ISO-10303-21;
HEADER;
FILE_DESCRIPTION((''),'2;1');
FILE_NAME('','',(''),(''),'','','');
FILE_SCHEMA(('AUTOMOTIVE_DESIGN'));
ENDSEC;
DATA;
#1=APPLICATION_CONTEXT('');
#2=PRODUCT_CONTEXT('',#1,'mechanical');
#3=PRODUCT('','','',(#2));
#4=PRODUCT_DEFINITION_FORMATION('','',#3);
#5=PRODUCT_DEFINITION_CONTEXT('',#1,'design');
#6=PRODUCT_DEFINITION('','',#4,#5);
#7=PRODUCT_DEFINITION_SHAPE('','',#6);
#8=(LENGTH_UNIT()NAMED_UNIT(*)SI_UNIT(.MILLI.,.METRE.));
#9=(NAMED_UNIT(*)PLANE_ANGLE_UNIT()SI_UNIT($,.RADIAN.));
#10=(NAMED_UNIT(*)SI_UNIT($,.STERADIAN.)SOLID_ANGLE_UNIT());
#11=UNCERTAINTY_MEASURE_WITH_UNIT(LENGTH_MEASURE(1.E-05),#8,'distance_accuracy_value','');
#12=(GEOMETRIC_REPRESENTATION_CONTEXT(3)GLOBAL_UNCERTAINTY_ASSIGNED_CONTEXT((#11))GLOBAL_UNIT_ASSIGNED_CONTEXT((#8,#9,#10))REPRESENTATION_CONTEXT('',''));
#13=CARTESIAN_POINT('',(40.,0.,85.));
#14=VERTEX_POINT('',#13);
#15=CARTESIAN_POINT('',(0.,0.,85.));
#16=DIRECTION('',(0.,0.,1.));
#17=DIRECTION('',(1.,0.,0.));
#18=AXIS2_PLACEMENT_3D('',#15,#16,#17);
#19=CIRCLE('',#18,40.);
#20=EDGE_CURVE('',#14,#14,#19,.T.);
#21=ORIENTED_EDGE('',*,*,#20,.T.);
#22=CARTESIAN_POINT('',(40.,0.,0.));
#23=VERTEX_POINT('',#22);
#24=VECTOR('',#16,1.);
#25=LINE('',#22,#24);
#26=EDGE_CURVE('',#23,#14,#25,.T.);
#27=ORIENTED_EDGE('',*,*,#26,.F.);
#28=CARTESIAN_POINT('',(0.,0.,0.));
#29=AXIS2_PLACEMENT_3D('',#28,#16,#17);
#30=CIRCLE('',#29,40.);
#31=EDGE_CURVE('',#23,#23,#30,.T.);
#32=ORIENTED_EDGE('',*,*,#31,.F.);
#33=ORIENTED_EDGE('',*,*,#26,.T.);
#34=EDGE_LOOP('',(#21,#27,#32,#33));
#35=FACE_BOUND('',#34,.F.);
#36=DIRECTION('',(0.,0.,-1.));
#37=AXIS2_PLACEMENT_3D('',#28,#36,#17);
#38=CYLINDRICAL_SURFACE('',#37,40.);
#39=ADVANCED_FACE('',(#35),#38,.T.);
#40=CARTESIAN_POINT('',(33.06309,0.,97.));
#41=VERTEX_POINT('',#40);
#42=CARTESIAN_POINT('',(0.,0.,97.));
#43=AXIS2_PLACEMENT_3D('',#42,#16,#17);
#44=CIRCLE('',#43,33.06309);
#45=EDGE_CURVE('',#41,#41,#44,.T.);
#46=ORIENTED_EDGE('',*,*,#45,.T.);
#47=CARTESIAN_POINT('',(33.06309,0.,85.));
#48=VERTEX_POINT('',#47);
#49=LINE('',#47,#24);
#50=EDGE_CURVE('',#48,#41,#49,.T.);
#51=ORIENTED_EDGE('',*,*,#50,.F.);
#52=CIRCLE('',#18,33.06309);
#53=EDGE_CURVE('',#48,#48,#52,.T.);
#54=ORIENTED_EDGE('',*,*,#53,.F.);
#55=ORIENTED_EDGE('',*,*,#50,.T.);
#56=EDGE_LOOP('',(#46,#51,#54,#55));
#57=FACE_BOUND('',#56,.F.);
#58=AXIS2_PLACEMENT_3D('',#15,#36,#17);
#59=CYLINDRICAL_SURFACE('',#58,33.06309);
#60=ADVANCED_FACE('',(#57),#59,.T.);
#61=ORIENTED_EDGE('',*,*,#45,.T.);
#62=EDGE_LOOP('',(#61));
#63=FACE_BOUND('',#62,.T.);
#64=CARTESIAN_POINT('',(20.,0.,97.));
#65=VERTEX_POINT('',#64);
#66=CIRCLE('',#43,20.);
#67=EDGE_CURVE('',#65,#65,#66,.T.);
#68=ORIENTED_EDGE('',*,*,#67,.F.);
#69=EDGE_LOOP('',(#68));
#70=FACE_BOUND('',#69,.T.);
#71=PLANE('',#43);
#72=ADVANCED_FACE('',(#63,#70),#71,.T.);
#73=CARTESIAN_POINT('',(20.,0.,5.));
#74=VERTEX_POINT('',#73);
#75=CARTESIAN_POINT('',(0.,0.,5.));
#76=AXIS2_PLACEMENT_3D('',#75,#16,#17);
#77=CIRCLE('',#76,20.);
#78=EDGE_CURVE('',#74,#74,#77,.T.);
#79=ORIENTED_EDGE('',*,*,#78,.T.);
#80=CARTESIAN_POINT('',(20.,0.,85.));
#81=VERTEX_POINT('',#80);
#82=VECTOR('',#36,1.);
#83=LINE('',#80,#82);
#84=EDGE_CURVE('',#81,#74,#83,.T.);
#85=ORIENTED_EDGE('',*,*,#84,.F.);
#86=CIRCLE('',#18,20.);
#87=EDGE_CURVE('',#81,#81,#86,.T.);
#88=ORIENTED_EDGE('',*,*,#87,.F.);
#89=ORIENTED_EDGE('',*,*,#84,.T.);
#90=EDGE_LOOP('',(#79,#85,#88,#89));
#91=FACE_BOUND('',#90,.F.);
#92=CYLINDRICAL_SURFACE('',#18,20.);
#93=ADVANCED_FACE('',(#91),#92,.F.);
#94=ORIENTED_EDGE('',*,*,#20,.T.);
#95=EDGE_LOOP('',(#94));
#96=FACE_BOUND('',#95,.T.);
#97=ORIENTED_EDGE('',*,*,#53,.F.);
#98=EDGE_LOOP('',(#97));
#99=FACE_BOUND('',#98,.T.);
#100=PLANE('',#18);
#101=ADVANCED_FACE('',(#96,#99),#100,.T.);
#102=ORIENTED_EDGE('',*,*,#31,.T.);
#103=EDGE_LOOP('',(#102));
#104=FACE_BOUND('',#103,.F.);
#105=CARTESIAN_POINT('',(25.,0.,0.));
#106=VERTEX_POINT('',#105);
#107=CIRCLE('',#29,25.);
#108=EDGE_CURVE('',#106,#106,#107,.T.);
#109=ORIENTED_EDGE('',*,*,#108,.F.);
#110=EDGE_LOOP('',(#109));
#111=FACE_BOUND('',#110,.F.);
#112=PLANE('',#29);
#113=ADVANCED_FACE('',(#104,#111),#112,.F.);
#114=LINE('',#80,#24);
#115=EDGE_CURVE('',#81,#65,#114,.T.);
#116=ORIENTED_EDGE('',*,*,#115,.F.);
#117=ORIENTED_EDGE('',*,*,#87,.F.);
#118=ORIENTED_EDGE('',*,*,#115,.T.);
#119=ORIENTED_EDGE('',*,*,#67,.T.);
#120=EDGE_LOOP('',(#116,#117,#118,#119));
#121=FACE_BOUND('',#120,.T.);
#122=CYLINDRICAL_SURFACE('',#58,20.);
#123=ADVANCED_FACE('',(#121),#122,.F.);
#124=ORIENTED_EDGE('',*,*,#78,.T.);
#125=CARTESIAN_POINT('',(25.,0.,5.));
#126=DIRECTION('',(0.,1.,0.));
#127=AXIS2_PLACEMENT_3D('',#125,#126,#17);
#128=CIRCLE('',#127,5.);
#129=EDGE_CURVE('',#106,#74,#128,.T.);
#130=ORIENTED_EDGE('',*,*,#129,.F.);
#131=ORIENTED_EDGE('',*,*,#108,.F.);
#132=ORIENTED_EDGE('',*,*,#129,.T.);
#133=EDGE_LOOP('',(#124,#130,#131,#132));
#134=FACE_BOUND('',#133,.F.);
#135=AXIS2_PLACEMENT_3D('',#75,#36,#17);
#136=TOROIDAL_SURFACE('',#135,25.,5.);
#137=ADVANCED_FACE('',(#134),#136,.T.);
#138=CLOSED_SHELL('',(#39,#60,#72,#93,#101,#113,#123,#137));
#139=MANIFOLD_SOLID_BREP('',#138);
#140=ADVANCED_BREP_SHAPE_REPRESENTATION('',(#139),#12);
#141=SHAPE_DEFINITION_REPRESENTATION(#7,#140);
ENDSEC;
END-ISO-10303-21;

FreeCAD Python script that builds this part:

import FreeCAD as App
import Part
import Sketcher

V = App.Vector
Q = App.Units.Quantity


def edges_at(feature, points):
    """Names of the edges that pass closest to the given points."""
    edges = feature.Shape.Edges
    near = lambda p: min(range(len(edges)), key=lambda i: edges[i].distToShape(Part.Vertex(*p))[0])
    return sorted({f"Edge{near(p) + 1}" for p in points})

doc = App.newDocument("Part")
body = doc.addObject("PartDesign::Body", "Body")

# Sketch on XY plane
sketch1 = doc.addObject("Sketcher::SketchObject", "Sketch")
body.addObject(sketch1)
sketch1.AttachmentSupport = (doc.XY_Plane, [""])
sketch1.MapMode = "FlatFace"
sketch1.addGeometry(Part.Circle(V(0, 0, 0), V(0, 0, 1), 40), False)
sketch1.addConstraint([
    Sketcher.Constraint("Coincident", 0, 3, -1, 1),
    Sketcher.Constraint("Diameter", 0, Q("80 mm")),
])
pad1 = doc.addObject("PartDesign::Pad", "Pad")
body.addObject(pad1)
pad1.Profile = sketch1
pad1.Length = 85

# Sketch on XY plane
sketch2 = doc.addObject("Sketcher::SketchObject", "Sketch001")
body.addObject(sketch2)
sketch2.AttachmentSupport = (doc.XY_Plane, [""])
sketch2.MapMode = "FlatFace"
sketch2.AttachmentOffset = App.Placement(V(0, 0, 85), App.Rotation())
sketch2.addGeometry(Part.Circle(V(0, 0, 0), V(0, 0, 1), 20), False)
sketch2.addConstraint([
    Sketcher.Constraint("Coincident", 0, 3, -1, 1),
    Sketcher.Constraint("Diameter", 0, Q("40 mm")),
])
pocket1 = doc.addObject("PartDesign::Pocket", "Pocket")
body.addObject(pocket1)
pocket1.Profile = sketch2
pocket1.Length = 88
doc.recompute()

fillet = doc.addObject("PartDesign::Fillet", "Fillet")
body.addObject(fillet)
fillet.Base = (pocket1, edges_at(pocket1, [(-20, 0, 0)]))
fillet.Radius = 5

# Sketch on XY plane
sketch3 = doc.addObject("Sketcher::SketchObject", "Sketch002")
body.addObject(sketch3)
sketch3.AttachmentSupport = (doc.XY_Plane, [""])
sketch3.MapMode = "FlatFace"
sketch3.AttachmentOffset = App.Placement(V(0, 0, 85), App.Rotation())
sketch3.addGeometry([
    Part.Circle(V(0, 0, 0), V(0, 0, 1), 33),
    Part.Circle(V(0, 0, 0), V(0, 0, 1), 20),
], False)
sketch3.addConstraint([
    Sketcher.Constraint("Coincident", 0, 3, -1, 1),
    Sketcher.Constraint("Coincident", 1, 3, -1, 1),
    Sketcher.Constraint("Diameter", 1, Q("40 mm")),
    Sketcher.Constraint("Diameter", 0, Q("66.126181 mm")),
])
pad2 = doc.addObject("PartDesign::Pad", "Pad001")
body.addObject(pad2)
pad2.Profile = sketch3
pad2.Length = 12

doc.recompute()
